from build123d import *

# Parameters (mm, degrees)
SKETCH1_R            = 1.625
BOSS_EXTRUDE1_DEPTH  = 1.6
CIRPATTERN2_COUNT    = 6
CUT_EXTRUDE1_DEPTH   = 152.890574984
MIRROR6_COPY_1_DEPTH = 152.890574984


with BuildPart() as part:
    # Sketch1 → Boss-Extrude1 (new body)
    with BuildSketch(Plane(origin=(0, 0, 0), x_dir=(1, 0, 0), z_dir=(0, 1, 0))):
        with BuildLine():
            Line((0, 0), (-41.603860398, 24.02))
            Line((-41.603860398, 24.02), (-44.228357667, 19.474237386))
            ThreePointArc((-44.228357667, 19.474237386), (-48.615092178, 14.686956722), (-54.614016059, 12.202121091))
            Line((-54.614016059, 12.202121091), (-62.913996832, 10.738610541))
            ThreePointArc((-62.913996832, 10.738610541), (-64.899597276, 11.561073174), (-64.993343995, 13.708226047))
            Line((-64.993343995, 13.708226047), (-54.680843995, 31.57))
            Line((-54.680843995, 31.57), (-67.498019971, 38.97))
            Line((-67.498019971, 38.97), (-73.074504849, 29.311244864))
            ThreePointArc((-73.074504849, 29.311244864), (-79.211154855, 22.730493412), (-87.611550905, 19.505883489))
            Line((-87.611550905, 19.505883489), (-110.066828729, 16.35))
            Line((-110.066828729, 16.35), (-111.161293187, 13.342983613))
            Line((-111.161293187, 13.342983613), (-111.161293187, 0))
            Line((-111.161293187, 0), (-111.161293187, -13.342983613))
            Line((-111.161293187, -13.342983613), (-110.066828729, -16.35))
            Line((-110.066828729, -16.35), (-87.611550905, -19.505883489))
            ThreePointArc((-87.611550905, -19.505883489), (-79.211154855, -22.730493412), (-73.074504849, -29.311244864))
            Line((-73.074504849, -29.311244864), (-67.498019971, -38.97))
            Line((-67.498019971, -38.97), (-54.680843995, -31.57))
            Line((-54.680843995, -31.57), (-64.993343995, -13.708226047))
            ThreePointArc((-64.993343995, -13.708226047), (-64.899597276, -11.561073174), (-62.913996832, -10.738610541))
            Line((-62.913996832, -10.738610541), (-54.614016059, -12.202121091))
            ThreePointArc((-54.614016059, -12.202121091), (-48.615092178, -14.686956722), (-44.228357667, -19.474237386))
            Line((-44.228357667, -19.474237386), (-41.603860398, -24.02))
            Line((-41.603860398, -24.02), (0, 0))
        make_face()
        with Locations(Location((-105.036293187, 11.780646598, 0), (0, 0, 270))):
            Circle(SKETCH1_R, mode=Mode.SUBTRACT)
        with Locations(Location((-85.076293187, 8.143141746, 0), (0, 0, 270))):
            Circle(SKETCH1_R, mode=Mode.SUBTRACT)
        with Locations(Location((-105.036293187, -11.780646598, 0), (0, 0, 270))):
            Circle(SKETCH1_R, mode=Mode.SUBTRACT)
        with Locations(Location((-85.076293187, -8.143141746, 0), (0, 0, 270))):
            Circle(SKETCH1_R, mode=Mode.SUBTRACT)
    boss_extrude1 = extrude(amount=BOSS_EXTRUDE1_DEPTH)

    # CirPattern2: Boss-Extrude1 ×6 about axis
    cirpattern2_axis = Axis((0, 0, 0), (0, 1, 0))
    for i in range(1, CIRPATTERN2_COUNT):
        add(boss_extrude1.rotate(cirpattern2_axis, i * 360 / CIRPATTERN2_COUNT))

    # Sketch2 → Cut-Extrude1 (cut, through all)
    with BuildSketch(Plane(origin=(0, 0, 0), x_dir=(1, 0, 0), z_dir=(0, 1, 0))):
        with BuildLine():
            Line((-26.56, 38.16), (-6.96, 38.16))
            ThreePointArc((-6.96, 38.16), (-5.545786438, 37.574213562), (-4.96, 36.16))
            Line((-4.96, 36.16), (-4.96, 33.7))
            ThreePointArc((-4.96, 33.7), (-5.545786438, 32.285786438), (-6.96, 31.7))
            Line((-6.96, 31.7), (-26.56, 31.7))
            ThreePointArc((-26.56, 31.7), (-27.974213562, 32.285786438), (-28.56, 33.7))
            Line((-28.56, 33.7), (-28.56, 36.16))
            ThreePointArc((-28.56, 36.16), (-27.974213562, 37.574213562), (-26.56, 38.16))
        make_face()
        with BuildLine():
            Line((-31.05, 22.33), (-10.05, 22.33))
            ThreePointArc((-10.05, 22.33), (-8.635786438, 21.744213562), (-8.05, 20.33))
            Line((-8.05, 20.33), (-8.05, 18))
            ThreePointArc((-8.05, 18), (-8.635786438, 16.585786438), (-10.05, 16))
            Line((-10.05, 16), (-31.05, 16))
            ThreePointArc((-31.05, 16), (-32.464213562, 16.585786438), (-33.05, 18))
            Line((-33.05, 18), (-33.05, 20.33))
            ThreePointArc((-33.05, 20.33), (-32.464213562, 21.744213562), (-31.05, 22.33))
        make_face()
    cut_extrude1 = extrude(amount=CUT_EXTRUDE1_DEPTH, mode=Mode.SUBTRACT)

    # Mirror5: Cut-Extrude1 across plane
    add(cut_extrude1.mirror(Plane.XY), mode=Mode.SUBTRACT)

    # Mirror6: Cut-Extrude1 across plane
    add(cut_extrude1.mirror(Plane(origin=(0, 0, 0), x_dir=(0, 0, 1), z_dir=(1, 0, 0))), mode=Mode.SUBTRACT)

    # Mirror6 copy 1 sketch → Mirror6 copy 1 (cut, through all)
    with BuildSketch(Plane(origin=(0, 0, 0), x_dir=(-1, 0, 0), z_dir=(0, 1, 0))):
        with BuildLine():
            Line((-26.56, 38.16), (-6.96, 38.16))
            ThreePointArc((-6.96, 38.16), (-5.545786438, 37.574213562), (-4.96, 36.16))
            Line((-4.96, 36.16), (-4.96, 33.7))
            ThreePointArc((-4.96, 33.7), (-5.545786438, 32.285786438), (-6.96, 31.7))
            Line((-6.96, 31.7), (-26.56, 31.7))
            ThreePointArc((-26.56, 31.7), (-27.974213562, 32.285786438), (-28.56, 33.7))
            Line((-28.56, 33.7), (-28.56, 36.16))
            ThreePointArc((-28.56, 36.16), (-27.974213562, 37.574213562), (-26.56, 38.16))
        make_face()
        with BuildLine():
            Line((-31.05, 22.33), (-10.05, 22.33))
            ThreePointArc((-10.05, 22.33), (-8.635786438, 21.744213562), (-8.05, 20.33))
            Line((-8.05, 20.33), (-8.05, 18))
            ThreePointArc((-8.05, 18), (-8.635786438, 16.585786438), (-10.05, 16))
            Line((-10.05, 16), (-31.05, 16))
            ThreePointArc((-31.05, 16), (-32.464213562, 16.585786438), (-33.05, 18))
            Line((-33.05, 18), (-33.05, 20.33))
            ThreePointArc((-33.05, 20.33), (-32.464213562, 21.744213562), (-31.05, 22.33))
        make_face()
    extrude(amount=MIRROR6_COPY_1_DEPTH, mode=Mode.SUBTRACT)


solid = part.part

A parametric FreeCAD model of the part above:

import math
import FreeCAD as App
import Part
import Sketcher
Q = App.Units.Quantity

doc = App.newDocument("Part")
params = doc.addObject("Spreadsheet::Sheet", "Params")
for row, (alias, value) in enumerate([
    ("sketch1_radius", "15 mm"),
    ("sketch1_radius2", "2 mm"),
    ("sketch1_radius3", "20 mm"),
    ("sketch1_diameter", "3.25 mm"),
    ("sketch1_length", "14.8 mm"),
    ("pad1_length", "1.6 mm"),
    ("sketch2_radius", "2 mm"),
    ("sketch2_width", "21 mm"),
    ("sketch2_width2", "19.6 mm"),
    ("sketch2_height", "2.46 mm"),
    ("sketch2_height2", "2.33 mm"),
    ("sketch3_radius", "2 mm"),
    ("sketch3_width", "21 mm"),
    ("sketch3_width2", "19.6 mm"),
    ("sketch3_height", "2.46 mm"),
    ("sketch3_height2", "2.33 mm"),
], start=1):
    params.set(f"A{row}", alias)
    params.set(f"B{row}", "=" + value)
    params.setAlias(f"B{row}", alias)

body = doc.addObject("PartDesign::Body", "Body")

sketch1 = doc.addObject("Sketcher::SketchObject", "Sketch")
body.addObject(sketch1)
sketch1.AttachmentSupport = (doc.XZ_Plane, [""])
sketch1.MapMode = "FlatFace"
sketch1.addGeometry(Part.LineSegment(App.Vector(0, 0, 0), App.Vector(-41.60386, -24.02, 0)), False)
sketch1.addGeometry(Part.LineSegment(App.Vector(-41.60386, -24.02, 0), App.Vector(-44.228358, -19.474237, 0)), False)
sketch1.addGeometry(Part.ArcOfCircle(Part.Circle(App.Vector(-57.218739, -26.974237, 0), App.Vector(0, 0, 1), 15), math.radians(30), math.radians(80)), False)
sketch1.addGeometry(Part.LineSegment(App.Vector(-54.614016, -12.202121, 0), App.Vector(-62.913997, -10.738611, 0)), False)
sketch1.addGeometry(Part.ArcOfCircle(Part.Circle(App.Vector(-63.261293, -12.708226, 0), App.Vector(0, 0, 1), 2), math.radians(80), math.radians(210)), False)
sketch1.addGeometry(Part.LineSegment(App.Vector(-64.993344, -13.708226, 0), App.Vector(-54.680844, -31.57, 0)), False)
sketch1.addGeometry(Part.LineSegment(App.Vector(-54.680844, -31.57, 0), App.Vector(-67.49802, -38.97, 0)), False)
sketch1.addGeometry(Part.LineSegment(App.Vector(-67.49802, -38.97, 0), App.Vector(-73.074505, -29.311245, 0)), False)
sketch1.addGeometry(Part.ArcOfCircle(Part.Circle(App.Vector(-90.395013, -39.311245, 0), App.Vector(0, 0, 1), 20), math.radians(30), math.radians(82)), False)
sketch1.addGeometry(Part.LineSegment(App.Vector(-87.611551, -19.505883, 0), App.Vector(-110.066829, -16.35, 0)), False)
sketch1.addGeometry(Part.LineSegment(App.Vector(-110.066829, -16.35, 0), App.Vector(-111.161293, -13.342984, 0)), False)
sketch1.addGeometry(Part.LineSegment(App.Vector(-111.161293, -13.342984, 0), App.Vector(-111.161293, 13.342984, 0)), False)
sketch1.addGeometry(Part.LineSegment(App.Vector(-111.161293, 13.342984, 0), App.Vector(-110.066829, 16.35, 0)), False)
sketch1.addGeometry(Part.LineSegment(App.Vector(-110.066829, 16.35, 0), App.Vector(-87.611551, 19.505883, 0)), False)
sketch1.addGeometry(Part.ArcOfCircle(Part.Circle(App.Vector(-90.395013, 39.311245, 0), App.Vector(0, 0, 1), 20), math.radians(-82), math.radians(-30)), False)
sketch1.addGeometry(Part.LineSegment(App.Vector(-73.074505, 29.311245, 0), App.Vector(-67.49802, 38.97, 0)), False)
sketch1.addGeometry(Part.LineSegment(App.Vector(-67.49802, 38.97, 0), App.Vector(-54.680844, 31.57, 0)), False)
sketch1.addGeometry(Part.LineSegment(App.Vector(-54.680844, 31.57, 0), App.Vector(-64.993344, 13.708226, 0)), False)
sketch1.addGeometry(Part.ArcOfCircle(Part.Circle(App.Vector(-63.261293, 12.708226, 0), App.Vector(0, 0, 1), 2), math.radians(150), math.radians(280)), False)
sketch1.addGeometry(Part.LineSegment(App.Vector(-62.913997, 10.738611, 0), App.Vector(-54.614016, 12.202121, 0)), False)
sketch1.addGeometry(Part.ArcOfCircle(Part.Circle(App.Vector(-57.218739, 26.974237, 0), App.Vector(0, 0, 1), 15), math.radians(-80), math.radians(-30)), False)
sketch1.addGeometry(Part.LineSegment(App.Vector(-44.228358, 19.474237, 0), App.Vector(-41.60386, 24.02, 0)), False)
sketch1.addGeometry(Part.LineSegment(App.Vector(-41.60386, 24.02, 0), App.Vector(0, 0, 0)), False)
sketch1.addGeometry(Part.Circle(App.Vector(-105.036293, 11.780647, 0), App.Vector(0, 0, 1), 1.625), False)
sketch1.addGeometry(Part.Circle(App.Vector(-85.076293, 8.143142, 0), App.Vector(0, 0, 1), 1.625), False)
sketch1.addGeometry(Part.Circle(App.Vector(-105.036293, -11.780647, 0), App.Vector(0, 0, 1), 1.625), False)
sketch1.addGeometry(Part.Circle(App.Vector(-85.076293, -8.143142, 0), App.Vector(0, 0, 1), 1.625), False)
sketch1.addConstraint(Sketcher.Constraint("Coincident", 0, 2, 1, 1))
sketch1.addConstraint(Sketcher.Constraint("Tangent", 1, 2, 2, 1))
sketch1.addConstraint(Sketcher.Constraint("Tangent", 2, 2, 3, 1))
sketch1.addConstraint(Sketcher.Constraint("Tangent", 3, 2, 4, 1))
sketch1.addConstraint(Sketcher.Constraint("Tangent", 4, 2, 5, 1))
sketch1.addConstraint(Sketcher.Constraint("Coincident", 5, 2, 6, 1))
sketch1.addConstraint(Sketcher.Constraint("Coincident", 6, 2, 7, 1))
sketch1.addConstraint(Sketcher.Constraint("Tangent", 7, 2, 8, 1))
sketch1.addConstraint(Sketcher.Constraint("Tangent", 8, 2, 9, 1))
sketch1.addConstraint(Sketcher.Constraint("Coincident", 9, 2, 10, 1))
sketch1.addConstraint(Sketcher.Constraint("Coincident", 10, 2, 11, 1))
sketch1.addConstraint(Sketcher.Constraint("Coincident", 11, 2, 12, 1))
sketch1.addConstraint(Sketcher.Constraint("Coincident", 12, 2, 13, 1))
sketch1.addConstraint(Sketcher.Constraint("Tangent", 13, 2, 14, 1))
sketch1.addConstraint(Sketcher.Constraint("Tangent", 14, 2, 15, 1))
sketch1.addConstraint(Sketcher.Constraint("Coincident", 15, 2, 16, 1))
sketch1.addConstraint(Sketcher.Constraint("Coincident", 16, 2, 17, 1))
sketch1.addConstraint(Sketcher.Constraint("Tangent", 17, 2, 18, 1))
sketch1.addConstraint(Sketcher.Constraint("Tangent", 18, 2, 19, 1))
sketch1.addConstraint(Sketcher.Constraint("Tangent", 19, 2, 20, 1))
sketch1.addConstraint(Sketcher.Constraint("Tangent", 20, 2, 21, 1))
sketch1.addConstraint(Sketcher.Constraint("Coincident", 21, 2, 22, 1))
sketch1.addConstraint(Sketcher.Constraint("Coincident", 22, 2, 0, 1))
sketch1.addConstraint(Sketcher.Constraint("Vertical", 11))
sketch1.addConstraint(Sketcher.Constraint("Coincident", 22, 2, -1, 1))
sketch1.addConstraint(Sketcher.Constraint("Equal", 8, 14))
sketch1.addConstraint(Sketcher.Constraint("Equal", 4, 18))
sketch1.addConstraint(Sketcher.Constraint("Equal", 2, 20))
sketch1.addConstraint(Sketcher.Constraint("Equal", 23, 24))
sketch1.addConstraint(Sketcher.Constraint("Equal", 24, 25))
sketch1.addConstraint(Sketcher.Constraint("Equal", 25, 26))
sketch1.addConstraint(Sketcher.Constraint("Symmetric", 8, 3, 14, 3, -1))
sketch1.addConstraint(Sketcher.Constraint("Symmetric", 4, 3, 18, 3, -1))
sketch1.addConstraint(Sketcher.Constraint("Symmetric", 2, 3, 20, 3, -1))
sketch1.addConstraint(Sketcher.Constraint("Symmetric", 23, 3, 25, 3, -1))
sketch1.addConstraint(Sketcher.Constraint("Symmetric", 24, 3, 26, 3, -1))
sketch1.addConstraint(Sketcher.Constraint("Symmetric", 9, 2, 12, 2, -1))
sketch1.addConstraint(Sketcher.Constraint("Symmetric", 6, 2, 15, 2, -1))
sketch1.addConstraint(Sketcher.Constraint("Symmetric", 5, 2, 16, 2, -1))
sketch1.addConstraint(Sketcher.Constraint("Symmetric", 0, 2, 21, 2, -1))
sketch1.addConstraint(Sketcher.Constraint("Perpendicular", 0, 1))
sketch1.addConstraint(Sketcher.Constraint("Parallel", 1, 5))
sketch1.addConstraint(Sketcher.Constraint("Perpendicular", 5, 6))
sketch1.addConstraint(Sketcher.Constraint("Perpendicular", 6, 7))
sketch1.addConstraint(Sketcher.Constraint("Equal", 10, 12))
sketch1.addConstraint(Sketcher.Constraint("Radius", 2, Q("15 mm")))
sketch1.addConstraint(Sketcher.Constraint("Radius", 4, Q("2 mm")))
sketch1.addConstraint(Sketcher.Constraint("Radius", 8, Q("20 mm")))
sketch1.addConstraint(Sketcher.Constraint("Diameter", 23, Q("3.25 mm")))
sketch1.addConstraint(Sketcher.Constraint("Angle", 0, Q("-150 deg")))
sketch1.addConstraint(Sketcher.Constraint("Angle", 3, Q("170 deg")))
sketch1.addConstraint(Sketcher.Constraint("Angle", 9, Q("172 deg")))
sketch1.addConstraint(Sketcher.Constraint("Angle", 10, Q("110 deg")))
sketch1.addConstraint(Sketcher.Constraint("Distance", 6, Q("14.8 mm")))
sketch1.addConstraint(Sketcher.Constraint("Distance", 10, Q("3.2 mm")))
sketch1.addConstraint(Sketcher.Constraint("Distance", 0, Q("48.04 mm")))
sketch1.addConstraint(Sketcher.Constraint("DistanceY", 5, 2, -1, 1, Q("31.57 mm")))
sketch1.addConstraint(Sketcher.Constraint("DistanceY", 9, 2, -1, 1, Q("16.35 mm")))
sketch1.addConstraint(Sketcher.Constraint("DistanceX", 23, 3, 24, 3, Q("19.96 mm")))
sketch1.addConstraint(Sketcher.Constraint("Distance", 5, Q("20.625 mm")))
sketch1.addConstraint(Sketcher.Constraint("DistanceX", 23, 3, 18, 3, Q("41.775 mm")))
sketch1.addConstraint(Sketcher.Constraint("DistanceX", 10, 2, 25, 3, Q("6.125 mm")))
sketch1.addConstraint(Sketcher.Constraint("DistanceY", 23, 3, 14, 3, Q("27.530598 mm")))
sketch1.addConstraint(Sketcher.Constraint("Distance", 3, Q("8.428021 mm")))
sketch1.addConstraint(Sketcher.Constraint("DistanceY", -1, 1, 24, 3, Q("8.143142 mm")))
sketch1.setExpression("Constraints[45]", "Params.sketch1_radius")
sketch1.setExpression("Constraints[46]", "Params.sketch1_radius2")
sketch1.setExpression("Constraints[47]", "Params.sketch1_radius3")
sketch1.setExpression("Constraints[48]", "Params.sketch1_diameter")
sketch1.setExpression("Constraints[53]", "Params.sketch1_length")
pad1 = doc.addObject("PartDesign::Pad", "Pad")
body.addObject(pad1)
pad1.Profile = sketch1
pad1.setExpression("Length", "Params.pad1_length")
pad1.Reversed = True
doc.recompute()

polarpattern = doc.addObject("PartDesign::PolarPattern", "PolarPattern")
body.addObject(polarpattern)
polarpattern.Originals = [pad1]
polarpattern.Axis = (doc.Y_Axis, [""])
polarpattern.Angle = 360
polarpattern.Occurrences = 6
body.Tip = polarpattern

sketch2 = doc.addObject("Sketcher::SketchObject", "Sketch001")
body.addObject(sketch2)
sketch2.AttachmentSupport = (doc.XZ_Plane, [""])
sketch2.MapMode = "FlatFace"
sketch2.addGeometry(Part.LineSegment(App.Vector(-6.96, -38.16, 0), App.Vector(-26.56, -38.16, 0)), False)
sketch2.addGeometry(Part.ArcOfCircle(Part.Circle(App.Vector(-26.56, -36.16, 0), App.Vector(0, 0, 1), 2), math.radians(-180), math.radians(-90)), False)
sketch2.addGeometry(Part.LineSegment(App.Vector(-28.56, -36.16, 0), App.Vector(-28.56, -33.7, 0)), False)
sketch2.addGeometry(Part.ArcOfCircle(Part.Circle(App.Vector(-26.56, -33.7, 0), App.Vector(0, 0, 1), 2), math.radians(90), math.radians(180)), False)
sketch2.addGeometry(Part.LineSegment(App.Vector(-26.56, -31.7, 0), App.Vector(-6.96, -31.7, 0)), False)
sketch2.addGeometry(Part.ArcOfCircle(Part.Circle(App.Vector(-6.96, -33.7, 0), App.Vector(0, 0, 1), 2), math.radians(0), math.radians(90)), False)
sketch2.addGeometry(Part.LineSegment(App.Vector(-4.96, -33.7, 0), App.Vector(-4.96, -36.16, 0)), False)
sketch2.addGeometry(Part.ArcOfCircle(Part.Circle(App.Vector(-6.96, -36.16, 0), App.Vector(0, 0, 1), 2), math.radians(-90), math.radians(0)), False)
sketch2.addGeometry(Part.LineSegment(App.Vector(-10.05, -22.33, 0), App.Vector(-31.05, -22.33, 0)), False)
sketch2.addGeometry(Part.ArcOfCircle(Part.Circle(App.Vector(-31.05, -20.33, 0), App.Vector(0, 0, 1), 2), math.radians(-180), math.radians(-90)), False)
sketch2.addGeometry(Part.LineSegment(App.Vector(-33.05, -20.33, 0), App.Vector(-33.05, -18, 0)), False)
sketch2.addGeometry(Part.ArcOfCircle(Part.Circle(App.Vector(-31.05, -18, 0), App.Vector(0, 0, 1), 2), math.radians(90), math.radians(180)), False)
sketch2.addGeometry(Part.LineSegment(App.Vector(-31.05, -16, 0), App.Vector(-10.05, -16, 0)), False)
sketch2.addGeometry(Part.ArcOfCircle(Part.Circle(App.Vector(-10.05, -18, 0), App.Vector(0, 0, 1), 2), math.radians(0), math.radians(90)), False)
sketch2.addGeometry(Part.LineSegment(App.Vector(-8.05, -18, 0), App.Vector(-8.05, -20.33, 0)), False)
sketch2.addGeometry(Part.ArcOfCircle(Part.Circle(App.Vector(-10.05, -20.33, 0), App.Vector(0, 0, 1), 2), math.radians(-90), math.radians(0)), False)
sketch2.addConstraint(Sketcher.Constraint("Tangent", 0, 2, 1, 2))
sketch2.addConstraint(Sketcher.Constraint("Tangent", 1, 1, 2, 1))
sketch2.addConstraint(Sketcher.Constraint("Tangent", 2, 2, 3, 2))
sketch2.addConstraint(Sketcher.Constraint("Tangent", 3, 1, 4, 1))
sketch2.addConstraint(Sketcher.Constraint("Tangent", 4, 2, 5, 2))
sketch2.addConstraint(Sketcher.Constraint("Tangent", 5, 1, 6, 1))
sketch2.addConstraint(Sketcher.Constraint("Tangent", 6, 2, 7, 2))
sketch2.addConstraint(Sketcher.Constraint("Tangent", 7, 1, 0, 1))
sketch2.addConstraint(Sketcher.Constraint("Tangent", 8, 2, 9, 2))
sketch2.addConstraint(Sketcher.Constraint("Tangent", 9, 1, 10, 1))
sketch2.addConstraint(Sketcher.Constraint("Tangent", 10, 2, 11, 2))
sketch2.addConstraint(Sketcher.Constraint("Tangent", 11, 1, 12, 1))
sketch2.addConstraint(Sketcher.Constraint("Tangent", 12, 2, 13, 2))
sketch2.addConstraint(Sketcher.Constraint("Tangent", 13, 1, 14, 1))
sketch2.addConstraint(Sketcher.Constraint("Tangent", 14, 2, 15, 2))
sketch2.addConstraint(Sketcher.Constraint("Tangent", 15, 1, 8, 1))
sketch2.addConstraint(Sketcher.Constraint("Horizontal", 0))
sketch2.addConstraint(Sketcher.Constraint("Vertical", 2))
sketch2.addConstraint(Sketcher.Constraint("Horizontal", 4))
sketch2.addConstraint(Sketcher.Constraint("Vertical", 6))
sketch2.addConstraint(Sketcher.Constraint("Horizontal", 8))
sketch2.addConstraint(Sketcher.Constraint("Vertical", 10))
sketch2.addConstraint(Sketcher.Constraint("Horizontal", 12))
sketch2.addConstraint(Sketcher.Constraint("Vertical", 14))
sketch2.addConstraint(Sketcher.Constraint("Equal", 1, 3))
sketch2.addConstraint(Sketcher.Constraint("Equal", 3, 5))
sketch2.addConstraint(Sketcher.Constraint("Equal", 5, 7))
sketch2.addConstraint(Sketcher.Constraint("Equal", 7, 9))
sketch2.addConstraint(Sketcher.Constraint("Equal", 9, 11))
sketch2.addConstraint(Sketcher.Constraint("Equal", 11, 13))
sketch2.addConstraint(Sketcher.Constraint("Equal", 13, 15))
sketch2.addConstraint(Sketcher.Constraint("Radius", 1, Q("2 mm")))
sketch2.addConstraint(Sketcher.Constraint("DistanceX", 8, 2, 8, 1, Q("21 mm")))
sketch2.addConstraint(Sketcher.Constraint("DistanceX", 0, 2, 0, 1, Q("19.6 mm")))
sketch2.addConstraint(Sketcher.Constraint("DistanceY", 11, 3, -1, 1, Q("18 mm")))
sketch2.addConstraint(Sketcher.Constraint("DistanceY", 2, 1, 2, 2, Q("2.46 mm")))
sketch2.addConstraint(Sketcher.Constraint("DistanceY", 10, 1, 10, 2, Q("2.33 mm")))
sketch2.addConstraint(Sketcher.Constraint("DistanceY", 3, 3, -1, 1, Q("33.7 mm")))
sketch2.addConstraint(Sketcher.Constraint("DistanceX", 1, 3, -1, 1, Q("26.56 mm")))
sketch2.addConstraint(Sketcher.Constraint("DistanceX", 9, 3, -1, 1, Q("31.05 mm")))
sketch2.setExpression("Constraints[31]", "Params.sketch2_radius")
sketch2.setExpression("Constraints[32]", "Params.sketch2_width")
sketch2.setExpression("Constraints[33]", "Params.sketch2_width2")
sketch2.setExpression("Constraints[35]", "Params.sketch2_height")
sketch2.setExpression("Constraints[36]", "Params.sketch2_height2")
pocket1 = doc.addObject("PartDesign::Pocket", "Pocket")
body.addObject(pocket1)
pocket1.Profile = sketch2
pocket1.Type = "ThroughAll"
doc.recompute()

mirrored = doc.addObject("PartDesign::Mirrored", "Mirrored")
body.addObject(mirrored)
mirrored.Originals = [pocket1]
mirrored.MirrorPlane = (doc.XY_Plane, [""])
body.Tip = mirrored
doc.recompute()

mirrored2 = doc.addObject("PartDesign::Mirrored", "Mirrored001")
body.addObject(mirrored2)
mirrored2.Originals = [pocket1]
mirrored2.MirrorPlane = (doc.YZ_Plane, [""])
body.Tip = mirrored2

sketch3 = doc.addObject("Sketcher::SketchObject", "Sketch002")
body.addObject(sketch3)
sketch3.AttachmentSupport = (doc.XZ_Plane, [""])
sketch3.MapMode = "FlatFace"
sketch3.addGeometry(Part.LineSegment(App.Vector(6.96, 38.16, 0), App.Vector(26.56, 38.16, 0)), False)
sketch3.addGeometry(Part.ArcOfCircle(Part.Circle(App.Vector(26.56, 36.16, 0), App.Vector(0, 0, 1), 2), math.radians(0), math.radians(90)), False)
sketch3.addGeometry(Part.LineSegment(App.Vector(28.56, 36.16, 0), App.Vector(28.56, 33.7, 0)), False)
sketch3.addGeometry(Part.ArcOfCircle(Part.Circle(App.Vector(26.56, 33.7, 0), App.Vector(0, 0, 1), 2), math.radians(-90), math.radians(0)), False)
sketch3.addGeometry(Part.LineSegment(App.Vector(26.56, 31.7, 0), App.Vector(6.96, 31.7, 0)), False)
sketch3.addGeometry(Part.ArcOfCircle(Part.Circle(App.Vector(6.96, 33.7, 0), App.Vector(0, 0, 1), 2), math.radians(-180), math.radians(-90)), False)
sketch3.addGeometry(Part.LineSegment(App.Vector(4.96, 33.7, 0), App.Vector(4.96, 36.16, 0)), False)
sketch3.addGeometry(Part.ArcOfCircle(Part.Circle(App.Vector(6.96, 36.16, 0), App.Vector(0, 0, 1), 2), math.radians(90), math.radians(180)), False)
sketch3.addGeometry(Part.LineSegment(App.Vector(10.05, 22.33, 0), App.Vector(31.05, 22.33, 0)), False)
sketch3.addGeometry(Part.ArcOfCircle(Part.Circle(App.Vector(31.05, 20.33, 0), App.Vector(0, 0, 1), 2), math.radians(0), math.radians(90)), False)
sketch3.addGeometry(Part.LineSegment(App.Vector(33.05, 20.33, 0), App.Vector(33.05, 18, 0)), False)
sketch3.addGeometry(Part.ArcOfCircle(Part.Circle(App.Vector(31.05, 18, 0), App.Vector(0, 0, 1), 2), math.radians(-90), math.radians(0)), False)
sketch3.addGeometry(Part.LineSegment(App.Vector(31.05, 16, 0), App.Vector(10.05, 16, 0)), False)
sketch3.addGeometry(Part.ArcOfCircle(Part.Circle(App.Vector(10.05, 18, 0), App.Vector(0, 0, 1), 2), math.radians(-180), math.radians(-90)), False)
sketch3.addGeometry(Part.LineSegment(App.Vector(8.05, 18, 0), App.Vector(8.05, 20.33, 0)), False)
sketch3.addGeometry(Part.ArcOfCircle(Part.Circle(App.Vector(10.05, 20.33, 0), App.Vector(0, 0, 1), 2), math.radians(90), math.radians(180)), False)
sketch3.addConstraint(Sketcher.Constraint("Tangent", 0, 2, 1, 2))
sketch3.addConstraint(Sketcher.Constraint("Tangent", 1, 1, 2, 1))
sketch3.addConstraint(Sketcher.Constraint("Tangent", 2, 2, 3, 2))
sketch3.addConstraint(Sketcher.Constraint("Tangent", 3, 1, 4, 1))
sketch3.addConstraint(Sketcher.Constraint("Tangent", 4, 2, 5, 2))
sketch3.addConstraint(Sketcher.Constraint("Tangent", 5, 1, 6, 1))
sketch3.addConstraint(Sketcher.Constraint("Tangent", 6, 2, 7, 2))
sketch3.addConstraint(Sketcher.Constraint("Tangent", 7, 1, 0, 1))
sketch3.addConstraint(Sketcher.Constraint("Tangent", 8, 2, 9, 2))
sketch3.addConstraint(Sketcher.Constraint("Tangent", 9, 1, 10, 1))
sketch3.addConstraint(Sketcher.Constraint("Tangent", 10, 2, 11, 2))
sketch3.addConstraint(Sketcher.Constraint("Tangent", 11, 1, 12, 1))
sketch3.addConstraint(Sketcher.Constraint("Tangent", 12, 2, 13, 2))
sketch3.addConstraint(Sketcher.Constraint("Tangent", 13, 1, 14, 1))
sketch3.addConstraint(Sketcher.Constraint("Tangent", 14, 2, 15, 2))
sketch3.addConstraint(Sketcher.Constraint("Tangent", 15, 1, 8, 1))
sketch3.addConstraint(Sketcher.Constraint("Horizontal", 0))
sketch3.addConstraint(Sketcher.Constraint("Vertical", 2))
sketch3.addConstraint(Sketcher.Constraint("Horizontal", 4))
sketch3.addConstraint(Sketcher.Constraint("Vertical", 6))
sketch3.addConstraint(Sketcher.Constraint("Horizontal", 8))
sketch3.addConstraint(Sketcher.Constraint("Vertical", 10))
sketch3.addConstraint(Sketcher.Constraint("Horizontal", 12))
sketch3.addConstraint(Sketcher.Constraint("Vertical", 14))
sketch3.addConstraint(Sketcher.Constraint("Equal", 1, 3))
sketch3.addConstraint(Sketcher.Constraint("Equal", 3, 5))
sketch3.addConstraint(Sketcher.Constraint("Equal", 5, 7))
sketch3.addConstraint(Sketcher.Constraint("Equal", 7, 9))
sketch3.addConstraint(Sketcher.Constraint("Equal", 9, 11))
sketch3.addConstraint(Sketcher.Constraint("Equal", 11, 13))
sketch3.addConstraint(Sketcher.Constraint("Equal", 13, 15))
sketch3.addConstraint(Sketcher.Constraint("Radius", 1, Q("2 mm")))
sketch3.addConstraint(Sketcher.Constraint("DistanceX", 8, 1, 8, 2, Q("21 mm")))
sketch3.addConstraint(Sketcher.Constraint("DistanceX", 0, 1, 0, 2, Q("19.6 mm")))
sketch3.addConstraint(Sketcher.Constraint("DistanceY", -1, 1, 11, 3, Q("18 mm")))
sketch3.addConstraint(Sketcher.Constraint("DistanceY", 2, 2, 2, 1, Q("2.46 mm")))
sketch3.addConstraint(Sketcher.Constraint("DistanceY", 10, 2, 10, 1, Q("2.33 mm")))
sketch3.addConstraint(Sketcher.Constraint("DistanceY", -1, 1, 3, 3, Q("33.7 mm")))
sketch3.addConstraint(Sketcher.Constraint("DistanceX", -1, 1, 1, 3, Q("26.56 mm")))
sketch3.addConstraint(Sketcher.Constraint("DistanceX", -1, 1, 9, 3, Q("31.05 mm")))
sketch3.setExpression("Constraints[31]", "Params.sketch3_radius")
sketch3.setExpression("Constraints[32]", "Params.sketch3_width")
sketch3.setExpression("Constraints[33]", "Params.sketch3_width2")
sketch3.setExpression("Constraints[35]", "Params.sketch3_height")
sketch3.setExpression("Constraints[36]", "Params.sketch3_height2")
pocket2 = doc.addObject("PartDesign::Pocket", "Pocket001")
body.addObject(pocket2)
pocket2.Profile = sketch3
pocket2.Type = "ThroughAll"

doc.recompute()
